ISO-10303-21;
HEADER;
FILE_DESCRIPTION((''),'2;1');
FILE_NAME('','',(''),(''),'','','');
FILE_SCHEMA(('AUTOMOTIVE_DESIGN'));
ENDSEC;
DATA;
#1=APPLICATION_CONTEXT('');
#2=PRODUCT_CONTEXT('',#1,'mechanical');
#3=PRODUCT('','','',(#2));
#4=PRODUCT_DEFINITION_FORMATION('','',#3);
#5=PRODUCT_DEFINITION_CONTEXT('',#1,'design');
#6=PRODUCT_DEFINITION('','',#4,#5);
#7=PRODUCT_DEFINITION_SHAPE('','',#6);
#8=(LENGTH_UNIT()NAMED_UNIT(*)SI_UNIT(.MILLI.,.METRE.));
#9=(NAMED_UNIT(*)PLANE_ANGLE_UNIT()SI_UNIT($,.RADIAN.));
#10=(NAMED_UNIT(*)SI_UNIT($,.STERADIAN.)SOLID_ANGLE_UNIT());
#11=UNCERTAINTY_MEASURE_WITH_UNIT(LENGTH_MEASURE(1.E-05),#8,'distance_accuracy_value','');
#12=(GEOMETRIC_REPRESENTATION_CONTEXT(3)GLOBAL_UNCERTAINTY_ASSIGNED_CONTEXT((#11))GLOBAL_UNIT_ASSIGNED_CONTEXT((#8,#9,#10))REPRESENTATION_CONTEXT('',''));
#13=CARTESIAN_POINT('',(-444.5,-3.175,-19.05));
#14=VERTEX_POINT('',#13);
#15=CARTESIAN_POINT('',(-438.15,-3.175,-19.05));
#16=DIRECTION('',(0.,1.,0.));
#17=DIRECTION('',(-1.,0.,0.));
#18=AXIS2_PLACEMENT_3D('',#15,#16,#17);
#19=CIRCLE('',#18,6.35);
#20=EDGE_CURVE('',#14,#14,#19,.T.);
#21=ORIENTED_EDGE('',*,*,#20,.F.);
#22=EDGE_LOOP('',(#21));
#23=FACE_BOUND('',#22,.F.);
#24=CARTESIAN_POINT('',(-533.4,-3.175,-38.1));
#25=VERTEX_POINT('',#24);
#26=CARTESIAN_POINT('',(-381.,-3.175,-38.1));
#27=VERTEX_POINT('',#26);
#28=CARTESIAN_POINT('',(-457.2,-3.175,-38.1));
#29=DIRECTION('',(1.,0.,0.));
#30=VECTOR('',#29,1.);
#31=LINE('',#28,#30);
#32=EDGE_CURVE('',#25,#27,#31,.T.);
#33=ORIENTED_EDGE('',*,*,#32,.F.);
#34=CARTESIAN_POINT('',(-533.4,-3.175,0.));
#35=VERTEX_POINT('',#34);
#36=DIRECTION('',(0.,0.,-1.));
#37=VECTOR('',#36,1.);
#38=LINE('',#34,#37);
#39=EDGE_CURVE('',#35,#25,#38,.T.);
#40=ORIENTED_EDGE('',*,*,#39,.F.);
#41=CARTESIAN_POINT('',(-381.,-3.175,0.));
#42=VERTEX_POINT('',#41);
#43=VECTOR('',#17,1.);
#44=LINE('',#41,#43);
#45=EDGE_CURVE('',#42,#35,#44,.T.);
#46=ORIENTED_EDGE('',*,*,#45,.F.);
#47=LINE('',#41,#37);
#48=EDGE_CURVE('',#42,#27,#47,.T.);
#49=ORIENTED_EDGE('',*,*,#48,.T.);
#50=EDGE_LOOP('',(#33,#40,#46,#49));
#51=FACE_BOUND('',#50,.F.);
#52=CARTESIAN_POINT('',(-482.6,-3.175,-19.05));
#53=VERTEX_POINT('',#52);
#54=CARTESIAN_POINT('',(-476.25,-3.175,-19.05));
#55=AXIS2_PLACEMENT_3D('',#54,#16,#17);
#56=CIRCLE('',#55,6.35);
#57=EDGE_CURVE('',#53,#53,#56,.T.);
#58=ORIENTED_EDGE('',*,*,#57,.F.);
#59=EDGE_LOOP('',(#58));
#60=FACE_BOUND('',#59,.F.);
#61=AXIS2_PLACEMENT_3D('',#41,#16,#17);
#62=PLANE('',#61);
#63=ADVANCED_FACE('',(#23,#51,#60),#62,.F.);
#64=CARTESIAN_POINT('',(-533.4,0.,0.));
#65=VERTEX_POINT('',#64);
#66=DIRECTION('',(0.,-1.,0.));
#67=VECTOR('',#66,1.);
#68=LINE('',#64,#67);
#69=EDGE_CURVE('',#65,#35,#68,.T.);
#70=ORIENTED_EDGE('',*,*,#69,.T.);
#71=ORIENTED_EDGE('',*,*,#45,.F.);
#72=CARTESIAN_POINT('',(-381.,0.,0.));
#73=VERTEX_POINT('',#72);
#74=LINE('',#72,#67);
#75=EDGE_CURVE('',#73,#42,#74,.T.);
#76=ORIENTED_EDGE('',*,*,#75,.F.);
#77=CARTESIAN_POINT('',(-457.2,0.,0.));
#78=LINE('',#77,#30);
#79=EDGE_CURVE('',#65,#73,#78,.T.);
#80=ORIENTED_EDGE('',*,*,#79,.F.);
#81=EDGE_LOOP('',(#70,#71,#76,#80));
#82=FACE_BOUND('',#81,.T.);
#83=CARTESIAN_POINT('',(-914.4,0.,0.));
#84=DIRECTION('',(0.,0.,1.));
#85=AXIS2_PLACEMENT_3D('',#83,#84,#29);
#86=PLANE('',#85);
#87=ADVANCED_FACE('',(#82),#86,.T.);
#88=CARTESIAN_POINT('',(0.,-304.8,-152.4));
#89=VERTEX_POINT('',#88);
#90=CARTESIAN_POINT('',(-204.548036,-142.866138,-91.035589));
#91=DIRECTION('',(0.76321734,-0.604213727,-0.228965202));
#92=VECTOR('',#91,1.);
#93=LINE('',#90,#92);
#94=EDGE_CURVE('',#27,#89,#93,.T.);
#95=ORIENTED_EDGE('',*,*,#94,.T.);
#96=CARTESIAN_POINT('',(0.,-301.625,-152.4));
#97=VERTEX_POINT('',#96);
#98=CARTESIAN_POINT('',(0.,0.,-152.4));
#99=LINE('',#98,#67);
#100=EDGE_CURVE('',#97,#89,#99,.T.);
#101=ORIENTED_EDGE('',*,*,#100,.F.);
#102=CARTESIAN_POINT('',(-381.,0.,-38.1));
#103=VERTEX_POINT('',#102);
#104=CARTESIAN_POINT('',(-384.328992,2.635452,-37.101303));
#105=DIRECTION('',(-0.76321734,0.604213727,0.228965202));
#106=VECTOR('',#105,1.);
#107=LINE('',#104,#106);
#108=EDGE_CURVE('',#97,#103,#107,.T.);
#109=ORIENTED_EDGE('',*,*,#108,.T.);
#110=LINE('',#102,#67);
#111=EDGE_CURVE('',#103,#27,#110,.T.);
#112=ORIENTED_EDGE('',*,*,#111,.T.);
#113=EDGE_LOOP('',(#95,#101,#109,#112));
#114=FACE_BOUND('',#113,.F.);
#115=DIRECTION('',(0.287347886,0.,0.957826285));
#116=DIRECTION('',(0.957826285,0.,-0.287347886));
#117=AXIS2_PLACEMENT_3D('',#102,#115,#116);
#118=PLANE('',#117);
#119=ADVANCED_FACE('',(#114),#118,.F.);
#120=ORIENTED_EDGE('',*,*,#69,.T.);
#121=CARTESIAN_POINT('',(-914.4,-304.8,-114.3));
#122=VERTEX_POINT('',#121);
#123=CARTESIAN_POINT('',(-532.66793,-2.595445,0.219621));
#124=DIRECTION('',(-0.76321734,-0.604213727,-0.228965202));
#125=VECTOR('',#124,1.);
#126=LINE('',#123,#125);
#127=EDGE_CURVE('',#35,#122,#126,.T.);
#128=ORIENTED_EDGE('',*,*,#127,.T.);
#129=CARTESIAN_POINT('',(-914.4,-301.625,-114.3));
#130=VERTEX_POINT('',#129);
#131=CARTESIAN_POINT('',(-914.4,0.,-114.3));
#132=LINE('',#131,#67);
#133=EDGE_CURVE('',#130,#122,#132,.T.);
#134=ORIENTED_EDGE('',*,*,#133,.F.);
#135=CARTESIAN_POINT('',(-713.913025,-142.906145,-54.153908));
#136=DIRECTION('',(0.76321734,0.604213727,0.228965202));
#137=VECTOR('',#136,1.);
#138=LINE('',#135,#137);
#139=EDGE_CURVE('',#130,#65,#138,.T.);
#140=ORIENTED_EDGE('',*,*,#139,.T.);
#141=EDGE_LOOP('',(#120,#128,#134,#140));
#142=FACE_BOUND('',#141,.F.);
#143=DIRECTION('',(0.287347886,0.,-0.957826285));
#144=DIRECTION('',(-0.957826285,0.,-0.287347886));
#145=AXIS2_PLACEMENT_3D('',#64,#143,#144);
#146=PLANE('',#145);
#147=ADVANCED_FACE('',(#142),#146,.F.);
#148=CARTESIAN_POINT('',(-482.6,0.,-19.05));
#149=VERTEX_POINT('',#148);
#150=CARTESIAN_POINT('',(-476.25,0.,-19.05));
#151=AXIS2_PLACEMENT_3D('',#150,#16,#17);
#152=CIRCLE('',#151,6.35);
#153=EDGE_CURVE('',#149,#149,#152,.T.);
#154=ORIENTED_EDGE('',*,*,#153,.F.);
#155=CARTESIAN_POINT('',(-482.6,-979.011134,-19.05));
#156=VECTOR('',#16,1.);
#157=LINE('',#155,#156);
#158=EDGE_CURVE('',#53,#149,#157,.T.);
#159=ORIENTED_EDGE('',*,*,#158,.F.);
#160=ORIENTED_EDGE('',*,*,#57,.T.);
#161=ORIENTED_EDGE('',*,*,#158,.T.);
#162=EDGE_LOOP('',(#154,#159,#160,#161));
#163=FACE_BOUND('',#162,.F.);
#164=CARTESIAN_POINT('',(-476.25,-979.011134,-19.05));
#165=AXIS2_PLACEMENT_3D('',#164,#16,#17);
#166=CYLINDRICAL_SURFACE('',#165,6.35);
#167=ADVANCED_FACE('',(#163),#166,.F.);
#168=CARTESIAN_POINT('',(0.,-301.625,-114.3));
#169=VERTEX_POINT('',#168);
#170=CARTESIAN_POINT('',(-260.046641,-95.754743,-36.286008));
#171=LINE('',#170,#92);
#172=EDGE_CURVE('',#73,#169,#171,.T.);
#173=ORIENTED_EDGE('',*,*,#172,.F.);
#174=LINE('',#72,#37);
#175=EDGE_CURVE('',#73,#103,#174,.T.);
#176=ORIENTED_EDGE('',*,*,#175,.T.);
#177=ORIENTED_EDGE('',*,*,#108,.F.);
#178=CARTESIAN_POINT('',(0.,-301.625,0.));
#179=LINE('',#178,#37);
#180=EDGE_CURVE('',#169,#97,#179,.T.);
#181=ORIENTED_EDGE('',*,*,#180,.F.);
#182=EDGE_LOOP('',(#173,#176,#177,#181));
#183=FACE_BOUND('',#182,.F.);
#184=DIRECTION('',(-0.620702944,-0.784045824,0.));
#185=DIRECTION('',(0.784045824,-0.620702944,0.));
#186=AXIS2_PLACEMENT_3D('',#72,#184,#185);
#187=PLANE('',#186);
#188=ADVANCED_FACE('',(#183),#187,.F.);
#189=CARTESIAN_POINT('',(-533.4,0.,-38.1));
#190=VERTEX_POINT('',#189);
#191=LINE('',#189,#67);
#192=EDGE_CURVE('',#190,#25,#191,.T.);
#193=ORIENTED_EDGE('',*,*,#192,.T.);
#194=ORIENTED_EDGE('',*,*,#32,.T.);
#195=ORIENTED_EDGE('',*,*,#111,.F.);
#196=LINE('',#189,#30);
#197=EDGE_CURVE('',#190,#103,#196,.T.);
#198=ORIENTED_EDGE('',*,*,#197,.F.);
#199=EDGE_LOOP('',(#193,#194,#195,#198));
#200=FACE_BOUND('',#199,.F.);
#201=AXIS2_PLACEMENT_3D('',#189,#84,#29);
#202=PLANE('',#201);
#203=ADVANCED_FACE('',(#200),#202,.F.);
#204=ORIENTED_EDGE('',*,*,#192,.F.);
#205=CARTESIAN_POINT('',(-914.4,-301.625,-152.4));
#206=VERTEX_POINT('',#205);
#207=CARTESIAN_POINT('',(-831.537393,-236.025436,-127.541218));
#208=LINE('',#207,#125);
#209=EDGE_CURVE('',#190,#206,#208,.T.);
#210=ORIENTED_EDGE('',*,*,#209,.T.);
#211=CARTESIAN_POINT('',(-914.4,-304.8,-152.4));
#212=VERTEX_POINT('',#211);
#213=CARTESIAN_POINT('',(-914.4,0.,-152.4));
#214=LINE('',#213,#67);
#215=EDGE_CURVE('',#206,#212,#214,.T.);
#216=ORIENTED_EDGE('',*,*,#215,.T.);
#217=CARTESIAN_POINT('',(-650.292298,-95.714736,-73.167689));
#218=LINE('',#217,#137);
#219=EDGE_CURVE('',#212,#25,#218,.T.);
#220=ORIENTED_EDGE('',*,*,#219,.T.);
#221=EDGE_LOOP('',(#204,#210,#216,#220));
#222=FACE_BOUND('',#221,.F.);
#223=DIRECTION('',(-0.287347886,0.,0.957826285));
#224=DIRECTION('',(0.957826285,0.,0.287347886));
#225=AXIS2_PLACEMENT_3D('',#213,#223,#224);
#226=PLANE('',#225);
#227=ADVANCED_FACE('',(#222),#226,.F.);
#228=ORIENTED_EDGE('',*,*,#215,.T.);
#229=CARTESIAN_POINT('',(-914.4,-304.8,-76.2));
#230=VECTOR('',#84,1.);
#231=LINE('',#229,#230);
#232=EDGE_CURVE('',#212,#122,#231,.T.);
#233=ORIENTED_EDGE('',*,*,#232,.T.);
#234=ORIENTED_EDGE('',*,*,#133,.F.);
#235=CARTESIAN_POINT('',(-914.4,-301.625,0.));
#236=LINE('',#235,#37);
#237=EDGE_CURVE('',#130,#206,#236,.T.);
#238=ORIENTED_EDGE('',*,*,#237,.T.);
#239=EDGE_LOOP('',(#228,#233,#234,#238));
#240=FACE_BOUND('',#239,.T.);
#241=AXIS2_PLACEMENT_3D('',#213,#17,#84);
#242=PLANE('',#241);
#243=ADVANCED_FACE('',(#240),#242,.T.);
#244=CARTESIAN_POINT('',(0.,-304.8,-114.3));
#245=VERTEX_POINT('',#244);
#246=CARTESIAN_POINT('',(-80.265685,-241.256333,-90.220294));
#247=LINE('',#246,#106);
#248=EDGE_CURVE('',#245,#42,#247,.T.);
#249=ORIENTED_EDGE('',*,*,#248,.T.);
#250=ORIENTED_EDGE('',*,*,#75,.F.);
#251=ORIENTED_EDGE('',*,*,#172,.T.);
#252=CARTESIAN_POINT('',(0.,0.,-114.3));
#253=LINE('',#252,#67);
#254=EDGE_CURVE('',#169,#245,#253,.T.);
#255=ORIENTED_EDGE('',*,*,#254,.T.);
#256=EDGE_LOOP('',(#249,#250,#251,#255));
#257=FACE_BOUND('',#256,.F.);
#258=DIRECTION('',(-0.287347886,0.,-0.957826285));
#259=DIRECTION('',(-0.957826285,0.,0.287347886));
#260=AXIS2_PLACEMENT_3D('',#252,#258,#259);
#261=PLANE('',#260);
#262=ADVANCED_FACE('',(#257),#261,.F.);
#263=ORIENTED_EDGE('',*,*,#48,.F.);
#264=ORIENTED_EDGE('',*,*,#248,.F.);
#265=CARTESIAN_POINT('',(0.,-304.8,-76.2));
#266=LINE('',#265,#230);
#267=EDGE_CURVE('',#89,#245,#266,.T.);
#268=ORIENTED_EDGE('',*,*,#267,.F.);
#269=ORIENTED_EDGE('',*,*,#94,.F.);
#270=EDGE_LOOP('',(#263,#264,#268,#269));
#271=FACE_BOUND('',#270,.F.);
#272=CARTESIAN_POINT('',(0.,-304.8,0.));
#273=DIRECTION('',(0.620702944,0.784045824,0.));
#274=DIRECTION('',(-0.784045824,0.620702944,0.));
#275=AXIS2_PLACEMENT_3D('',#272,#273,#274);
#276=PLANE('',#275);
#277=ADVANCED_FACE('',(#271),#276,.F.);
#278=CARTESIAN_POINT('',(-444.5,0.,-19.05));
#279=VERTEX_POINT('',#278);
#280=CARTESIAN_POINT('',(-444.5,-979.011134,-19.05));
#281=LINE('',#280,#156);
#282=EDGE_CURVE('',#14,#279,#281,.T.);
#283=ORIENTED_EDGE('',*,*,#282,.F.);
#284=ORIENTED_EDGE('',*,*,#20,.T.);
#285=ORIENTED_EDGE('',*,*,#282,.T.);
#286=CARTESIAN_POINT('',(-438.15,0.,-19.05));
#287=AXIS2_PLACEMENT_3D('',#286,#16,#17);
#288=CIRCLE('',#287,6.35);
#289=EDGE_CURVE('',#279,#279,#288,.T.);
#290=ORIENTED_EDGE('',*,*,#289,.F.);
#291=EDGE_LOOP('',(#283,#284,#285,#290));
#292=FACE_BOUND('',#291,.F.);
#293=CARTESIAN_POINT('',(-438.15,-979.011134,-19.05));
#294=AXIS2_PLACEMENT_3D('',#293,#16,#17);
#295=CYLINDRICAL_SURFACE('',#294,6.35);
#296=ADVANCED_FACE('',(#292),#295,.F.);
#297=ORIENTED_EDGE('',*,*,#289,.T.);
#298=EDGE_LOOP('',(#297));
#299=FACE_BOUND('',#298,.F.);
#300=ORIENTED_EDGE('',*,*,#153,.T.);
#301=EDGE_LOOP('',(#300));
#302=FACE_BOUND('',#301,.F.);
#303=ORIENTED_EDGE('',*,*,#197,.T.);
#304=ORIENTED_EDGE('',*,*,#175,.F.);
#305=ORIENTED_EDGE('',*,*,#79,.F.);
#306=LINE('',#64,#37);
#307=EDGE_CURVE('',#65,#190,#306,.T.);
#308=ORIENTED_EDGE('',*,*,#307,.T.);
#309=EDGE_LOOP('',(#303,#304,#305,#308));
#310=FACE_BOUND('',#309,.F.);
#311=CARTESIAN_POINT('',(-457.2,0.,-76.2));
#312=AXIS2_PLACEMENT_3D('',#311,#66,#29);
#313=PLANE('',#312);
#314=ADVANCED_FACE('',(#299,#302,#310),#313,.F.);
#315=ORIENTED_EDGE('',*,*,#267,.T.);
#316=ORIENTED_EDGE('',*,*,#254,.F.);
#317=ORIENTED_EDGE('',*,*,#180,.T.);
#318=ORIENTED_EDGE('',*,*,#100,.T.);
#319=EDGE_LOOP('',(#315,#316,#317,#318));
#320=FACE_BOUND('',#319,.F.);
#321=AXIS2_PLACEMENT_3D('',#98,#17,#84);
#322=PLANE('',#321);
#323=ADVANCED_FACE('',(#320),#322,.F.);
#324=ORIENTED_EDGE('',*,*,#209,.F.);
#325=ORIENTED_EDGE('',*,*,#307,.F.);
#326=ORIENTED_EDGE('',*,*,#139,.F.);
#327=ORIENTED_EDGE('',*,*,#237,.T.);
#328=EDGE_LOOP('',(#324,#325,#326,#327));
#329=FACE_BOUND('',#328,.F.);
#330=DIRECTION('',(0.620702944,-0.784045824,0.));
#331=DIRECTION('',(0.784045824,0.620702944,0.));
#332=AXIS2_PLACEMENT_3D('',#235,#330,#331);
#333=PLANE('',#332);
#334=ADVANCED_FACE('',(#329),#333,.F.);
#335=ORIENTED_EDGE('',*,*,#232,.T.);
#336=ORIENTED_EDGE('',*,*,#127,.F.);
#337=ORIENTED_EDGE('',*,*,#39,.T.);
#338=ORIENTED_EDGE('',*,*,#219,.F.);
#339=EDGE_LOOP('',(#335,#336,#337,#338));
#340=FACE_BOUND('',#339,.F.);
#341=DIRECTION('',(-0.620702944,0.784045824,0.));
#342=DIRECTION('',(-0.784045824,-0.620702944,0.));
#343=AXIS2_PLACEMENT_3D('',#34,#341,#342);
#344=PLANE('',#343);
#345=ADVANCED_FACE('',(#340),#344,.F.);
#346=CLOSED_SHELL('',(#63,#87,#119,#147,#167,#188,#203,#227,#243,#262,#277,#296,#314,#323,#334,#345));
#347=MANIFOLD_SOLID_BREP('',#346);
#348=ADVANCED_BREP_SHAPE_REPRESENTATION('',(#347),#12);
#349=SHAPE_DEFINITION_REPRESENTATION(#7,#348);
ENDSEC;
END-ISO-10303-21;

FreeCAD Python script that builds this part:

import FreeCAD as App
import Part
import Sketcher

V = App.Vector
Q = App.Units.Quantity

doc = App.newDocument("Part")
body = doc.addObject("PartDesign::Body", "Body")

# Sketch on XZ plane
sketch1 = body.newObject("Sketcher::SketchObject", "Sketch")
sketch1.AttachmentSupport = (doc.getObject("XZ_Plane"), [""])
sketch1.MapMode = "FlatFace"
sketch1.addGeometry([
    Part.LineSegment(V(-914, 0, 0), V(-914, -152, 0)),
    Part.LineSegment(V(-914, -152, 0), V(0, -152, 0)),
    Part.LineSegment(V(0, -152, 0), V(0, 0, 0)),
    Part.LineSegment(V(0, 0, 0), V(-914, 0, 0)),
], False)
sketch1.addConstraint([
    Sketcher.Constraint("Coincident", 0, 2, 1, 1),
    Sketcher.Constraint("Coincident", 1, 2, 2, 1),
    Sketcher.Constraint("Coincident", 2, 2, 3, 1),
    Sketcher.Constraint("Coincident", 3, 2, 0, 1),
    Sketcher.Constraint("Vertical", 0),
    Sketcher.Constraint("Horizontal", 1),
    Sketcher.Constraint("Vertical", 2),
    Sketcher.Constraint("Horizontal", 3),
    Sketcher.Constraint("Coincident", 2, 2, -1, 1),
    Sketcher.Constraint("DistanceX", 1, 1, 1, 2, Q("36 in")),
    Sketcher.Constraint("DistanceY", 0, 2, 0, 1, Q("6 in")),
])
pad1 = body.newObject("PartDesign::Pad", "Pad")
pad1.Profile = sketch1
pad1.Length = Q("12 in")

# Sketch on XY plane
sketch2 = body.newObject("Sketcher::SketchObject", "Sketch001")
sketch2.AttachmentSupport = (doc.getObject("XY_Plane"), [""])
sketch2.MapMode = "FlatFace"
sketch2.addGeometry([
    Part.LineSegment(V(-381, -3, 0), V(-533, -3, 0)),
    Part.LineSegment(V(-533, -3, 0), V(-914, -305, 0)),
    Part.LineSegment(V(-914, -305, 0), V(0, -305, 0)),
    Part.LineSegment(V(0, -305, 0), V(-381, -3, 0)),
], False)
sketch2.addConstraint([
    Sketcher.Constraint("Coincident", 0, 2, 1, 1),
    Sketcher.Constraint("Coincident", 1, 2, 2, 1),
    Sketcher.Constraint("Coincident", 2, 2, 3, 1),
    Sketcher.Constraint("Coincident", 3, 2, 0, 1),
    Sketcher.Constraint("Horizontal", 0),
    Sketcher.Constraint("Horizontal", 2),
    Sketcher.Constraint("PointOnObject", 2, 2, -2),
    Sketcher.Constraint("Equal", 1, 3),
    Sketcher.Constraint("DistanceX", 0, 2, 0, 1, Q("6 in")),
    Sketcher.Constraint("DistanceX", 2, 1, 2, 2, Q("36 in")),
    Sketcher.Constraint("DistanceY", 1, 2, -1, 1, Q("12 in")),
    Sketcher.Constraint("DistanceY", 0, 2, -1, 1, Q("0.125 in")),
])
pocket1 = body.newObject("PartDesign::Pocket", "Pocket")
pocket1.Profile = sketch2
pocket1.Type = "ThroughAll"

# Sketch on XY plane
sketch3 = body.newObject("Sketcher::SketchObject", "Sketch002")
sketch3.AttachmentSupport = (doc.getObject("XY_Plane"), [""])
sketch3.MapMode = "FlatFace"
sketch3.addGeometry([
    Part.LineSegment(V(-914, 0, 0), V(-914, -302, 0)),
    Part.LineSegment(V(-914, -302, 0), V(-533, 0, 0)),
    Part.LineSegment(V(-533, 0, 0), V(-914, 0, 0)),
], False)
sketch3.addConstraint([
    Sketcher.Constraint("Coincident", 0, 2, 1, 1),
    Sketcher.Constraint("Coincident", 1, 2, 2, 1),
    Sketcher.Constraint("Coincident", 2, 2, 0, 1),
    Sketcher.Constraint("Vertical", 0),
    Sketcher.Constraint("Horizontal", 2),
    Sketcher.Constraint("PointOnObject", 1, 2, -1),
    Sketcher.Constraint("DistanceX", 2, 2, 2, 1, Q("15 in")),
    Sketcher.Constraint("DistanceX", 0, 2, -1, 1, Q("36 in")),
    Sketcher.Constraint("DistanceY", 0, 2, 0, 1, Q("11.875 in")),
])
pocket2 = body.newObject("PartDesign::Pocket", "Pocket001")
pocket2.Profile = sketch3
pocket2.Type = "ThroughAll"

# Sketch on XY plane
sketch4 = body.newObject("Sketcher::SketchObject", "Sketch003")
sketch4.AttachmentSupport = (doc.getObject("XY_Plane"), [""])
sketch4.MapMode = "FlatFace"
sketch4.addGeometry([
    Part.LineSegment(V(0, 0, 0), V(-381, 0, 0)),
    Part.LineSegment(V(-381, 0, 0), V(0, -302, 0)),
    Part.LineSegment(V(0, -302, 0), V(0, 0, 0)),
], False)
sketch4.addConstraint([
    Sketcher.Constraint("Coincident", 0, 2, 1, 1),
    Sketcher.Constraint("Coincident", 1, 2, 2, 1),
    Sketcher.Constraint("Coincident", 2, 2, 0, 1),
    Sketcher.Constraint("Horizontal", 0),
    Sketcher.Constraint("Vertical", 2),
    Sketcher.Constraint("Coincident", 2, 2, -1, 1),
    Sketcher.Constraint("DistanceX", 0, 2, 0, 1, Q("15 in")),
    Sketcher.Constraint("DistanceY", 2, 1, 2, 2, Q("11.875 in")),
])
pocket3 = body.newObject("PartDesign::Pocket", "Pocket002")
pocket3.Profile = sketch4
pocket3.Type = "ThroughAll"

# Sketch on XZ plane
sketch5 = body.newObject("Sketcher::SketchObject", "Sketch004")
sketch5.AttachmentSupport = (doc.getObject("XZ_Plane"), [""])
sketch5.MapMode = "FlatFace"
sketch5.addGeometry([
    Part.LineSegment(V(-381, -38, 0), V(0, -152, 0)),
    Part.LineSegment(V(0, -152, 0), V(-914, -152, 0)),
    Part.LineSegment(V(-914, -152, 0), V(-533, -38, 0)),
    Part.LineSegment(V(-533, -38, 0), V(-381, -38, 0)),
], False)
sketch5.addConstraint([
    Sketcher.Constraint("Coincident", 0, 2, 1, 1),
    Sketcher.Constraint("Coincident", 1, 2, 2, 1),
    Sketcher.Constraint("Coincident", 2, 2, 3, 1),
    Sketcher.Constraint("Coincident", 3, 2, 0, 1),
    Sketcher.Constraint("Horizontal", 1),
    Sketcher.Constraint("Horizontal", 3),
    Sketcher.Constraint("PointOnObject", 0, 2, -2),
    Sketcher.Constraint("Equal", 0, 2),
    Sketcher.Constraint("DistanceX", 1, 2, 1, 1, Q("36 in")),
    Sketcher.Constraint("DistanceX", 3, 1, 3, 2, Q("6 in")),
    Sketcher.Constraint("DistanceY", 0, 2, -1, 1, Q("6 in")),
    Sketcher.Constraint("DistanceY", 2, 2, -1, 1, Q("1.5 in")),
])
pocket4 = body.newObject("PartDesign::Pocket", "Pocket003")
pocket4.Profile = sketch5
pocket4.Type = "ThroughAll"
pocket4.Reversed = True

# Sketch on XZ plane
sketch6 = body.newObject("Sketcher::SketchObject", "Sketch005")
sketch6.AttachmentSupport = (doc.getObject("XZ_Plane"), [""])
sketch6.MapMode = "FlatFace"
sketch6.addGeometry([
    Part.LineSegment(V(0, -114, 0), V(-381, 0, 0)),
    Part.LineSegment(V(-381, 0, 0), V(0, 0, 0)),
    Part.LineSegment(V(0, 0, 0), V(0, -114, 0)),
], False)
sketch6.addConstraint([
    Sketcher.Constraint("Coincident", 0, 2, 1, 1),
    Sketcher.Constraint("Coincident", 1, 2, 2, 1),
    Sketcher.Constraint("Coincident", 2, 2, 0, 1),
    Sketcher.Constraint("Horizontal", 1),
    Sketcher.Constraint("Vertical", 2),
    Sketcher.Constraint("Coincident", 1, 2, -1, 1),
    Sketcher.Constraint("DistanceX", 1, 1, 1, 2, Q("15 in")),
    Sketcher.Constraint("DistanceY", 2, 2, 2, 1, Q("4.5 in")),
])
pocket5 = body.newObject("PartDesign::Pocket", "Pocket004")
pocket5.Profile = sketch6
pocket5.Type = "ThroughAll"
pocket5.Reversed = True

# Sketch on XZ plane
sketch7 = body.newObject("Sketcher::SketchObject", "Sketch006")
sketch7.AttachmentSupport = (doc.getObject("XZ_Plane"), [""])
sketch7.MapMode = "FlatFace"
sketch7.addGeometry([
    Part.LineSegment(V(-914, 0, 0), V(-533, 0, 0)),
    Part.LineSegment(V(-533, 0, 0), V(-914, -114, 0)),
    Part.LineSegment(V(-914, -114, 0), V(-914, 0, 0)),
], False)
sketch7.addConstraint([
    Sketcher.Constraint("Coincident", 0, 2, 1, 1),
    Sketcher.Constraint("Coincident", 1, 2, 2, 1),
    Sketcher.Constraint("Coincident", 2, 2, 0, 1),
    Sketcher.Constraint("Horizontal", 0),
    Sketcher.Constraint("Vertical", 2),
    Sketcher.Constraint("PointOnObject", 0, 2, -1),
    Sketcher.Constraint("DistanceX", 0, 1, 0, 2, Q("15 in")),
    Sketcher.Constraint("DistanceY", 2, 1, 2, 2, Q("4.5 in")),
    Sketcher.Constraint("DistanceX", 0, 2, -1, 1, Q("21 in")),
])
pocket6 = body.newObject("PartDesign::Pocket", "Pocket005")
pocket6.Profile = sketch7
pocket6.Type = "ThroughAll"
pocket6.Reversed = True

# Sketch on XZ plane
sketch8 = body.newObject("Sketcher::SketchObject", "Sketch007")
sketch8.AttachmentSupport = (doc.getObject("XZ_Plane"), [""])
sketch8.MapMode = "FlatFace"
sketch8.AttachmentOffset = App.Placement(V(0, 0, 0.125 * 25.4), App.Rotation())
sketch8.addGeometry([
    Part.Circle(V(-476, -19, 0), V(0, 0, 1), 6),
    Part.Circle(V(-438, -19, 0), V(0, 0, 1), 6),
], False)
sketch8.addConstraint([
    Sketcher.Constraint("Equal", 0, 1),
    Sketcher.Constraint("Horizontal", 0, 3, 1, 3),
    Sketcher.Constraint("Diameter", 0, Q("0.5 in")),
    Sketcher.Constraint("DistanceX", 0, 3, 1, 3, Q("1.5 in")),
    Sketcher.Constraint("DistanceX", 0, 3, -1, 1, Q("18.75 in")),
    Sketcher.Constraint("DistanceY", 0, 3, -1, 1, Q("0.75 in")),
])
doc.recompute()
hole = body.newObject("PartDesign::Hole", "Hole")
hole.Profile = sketch8
hole.ThreadType = "None"
hole.Diameter = Q("0.5 in")
hole.DepthType = "ThroughAll"

doc.recompute()
